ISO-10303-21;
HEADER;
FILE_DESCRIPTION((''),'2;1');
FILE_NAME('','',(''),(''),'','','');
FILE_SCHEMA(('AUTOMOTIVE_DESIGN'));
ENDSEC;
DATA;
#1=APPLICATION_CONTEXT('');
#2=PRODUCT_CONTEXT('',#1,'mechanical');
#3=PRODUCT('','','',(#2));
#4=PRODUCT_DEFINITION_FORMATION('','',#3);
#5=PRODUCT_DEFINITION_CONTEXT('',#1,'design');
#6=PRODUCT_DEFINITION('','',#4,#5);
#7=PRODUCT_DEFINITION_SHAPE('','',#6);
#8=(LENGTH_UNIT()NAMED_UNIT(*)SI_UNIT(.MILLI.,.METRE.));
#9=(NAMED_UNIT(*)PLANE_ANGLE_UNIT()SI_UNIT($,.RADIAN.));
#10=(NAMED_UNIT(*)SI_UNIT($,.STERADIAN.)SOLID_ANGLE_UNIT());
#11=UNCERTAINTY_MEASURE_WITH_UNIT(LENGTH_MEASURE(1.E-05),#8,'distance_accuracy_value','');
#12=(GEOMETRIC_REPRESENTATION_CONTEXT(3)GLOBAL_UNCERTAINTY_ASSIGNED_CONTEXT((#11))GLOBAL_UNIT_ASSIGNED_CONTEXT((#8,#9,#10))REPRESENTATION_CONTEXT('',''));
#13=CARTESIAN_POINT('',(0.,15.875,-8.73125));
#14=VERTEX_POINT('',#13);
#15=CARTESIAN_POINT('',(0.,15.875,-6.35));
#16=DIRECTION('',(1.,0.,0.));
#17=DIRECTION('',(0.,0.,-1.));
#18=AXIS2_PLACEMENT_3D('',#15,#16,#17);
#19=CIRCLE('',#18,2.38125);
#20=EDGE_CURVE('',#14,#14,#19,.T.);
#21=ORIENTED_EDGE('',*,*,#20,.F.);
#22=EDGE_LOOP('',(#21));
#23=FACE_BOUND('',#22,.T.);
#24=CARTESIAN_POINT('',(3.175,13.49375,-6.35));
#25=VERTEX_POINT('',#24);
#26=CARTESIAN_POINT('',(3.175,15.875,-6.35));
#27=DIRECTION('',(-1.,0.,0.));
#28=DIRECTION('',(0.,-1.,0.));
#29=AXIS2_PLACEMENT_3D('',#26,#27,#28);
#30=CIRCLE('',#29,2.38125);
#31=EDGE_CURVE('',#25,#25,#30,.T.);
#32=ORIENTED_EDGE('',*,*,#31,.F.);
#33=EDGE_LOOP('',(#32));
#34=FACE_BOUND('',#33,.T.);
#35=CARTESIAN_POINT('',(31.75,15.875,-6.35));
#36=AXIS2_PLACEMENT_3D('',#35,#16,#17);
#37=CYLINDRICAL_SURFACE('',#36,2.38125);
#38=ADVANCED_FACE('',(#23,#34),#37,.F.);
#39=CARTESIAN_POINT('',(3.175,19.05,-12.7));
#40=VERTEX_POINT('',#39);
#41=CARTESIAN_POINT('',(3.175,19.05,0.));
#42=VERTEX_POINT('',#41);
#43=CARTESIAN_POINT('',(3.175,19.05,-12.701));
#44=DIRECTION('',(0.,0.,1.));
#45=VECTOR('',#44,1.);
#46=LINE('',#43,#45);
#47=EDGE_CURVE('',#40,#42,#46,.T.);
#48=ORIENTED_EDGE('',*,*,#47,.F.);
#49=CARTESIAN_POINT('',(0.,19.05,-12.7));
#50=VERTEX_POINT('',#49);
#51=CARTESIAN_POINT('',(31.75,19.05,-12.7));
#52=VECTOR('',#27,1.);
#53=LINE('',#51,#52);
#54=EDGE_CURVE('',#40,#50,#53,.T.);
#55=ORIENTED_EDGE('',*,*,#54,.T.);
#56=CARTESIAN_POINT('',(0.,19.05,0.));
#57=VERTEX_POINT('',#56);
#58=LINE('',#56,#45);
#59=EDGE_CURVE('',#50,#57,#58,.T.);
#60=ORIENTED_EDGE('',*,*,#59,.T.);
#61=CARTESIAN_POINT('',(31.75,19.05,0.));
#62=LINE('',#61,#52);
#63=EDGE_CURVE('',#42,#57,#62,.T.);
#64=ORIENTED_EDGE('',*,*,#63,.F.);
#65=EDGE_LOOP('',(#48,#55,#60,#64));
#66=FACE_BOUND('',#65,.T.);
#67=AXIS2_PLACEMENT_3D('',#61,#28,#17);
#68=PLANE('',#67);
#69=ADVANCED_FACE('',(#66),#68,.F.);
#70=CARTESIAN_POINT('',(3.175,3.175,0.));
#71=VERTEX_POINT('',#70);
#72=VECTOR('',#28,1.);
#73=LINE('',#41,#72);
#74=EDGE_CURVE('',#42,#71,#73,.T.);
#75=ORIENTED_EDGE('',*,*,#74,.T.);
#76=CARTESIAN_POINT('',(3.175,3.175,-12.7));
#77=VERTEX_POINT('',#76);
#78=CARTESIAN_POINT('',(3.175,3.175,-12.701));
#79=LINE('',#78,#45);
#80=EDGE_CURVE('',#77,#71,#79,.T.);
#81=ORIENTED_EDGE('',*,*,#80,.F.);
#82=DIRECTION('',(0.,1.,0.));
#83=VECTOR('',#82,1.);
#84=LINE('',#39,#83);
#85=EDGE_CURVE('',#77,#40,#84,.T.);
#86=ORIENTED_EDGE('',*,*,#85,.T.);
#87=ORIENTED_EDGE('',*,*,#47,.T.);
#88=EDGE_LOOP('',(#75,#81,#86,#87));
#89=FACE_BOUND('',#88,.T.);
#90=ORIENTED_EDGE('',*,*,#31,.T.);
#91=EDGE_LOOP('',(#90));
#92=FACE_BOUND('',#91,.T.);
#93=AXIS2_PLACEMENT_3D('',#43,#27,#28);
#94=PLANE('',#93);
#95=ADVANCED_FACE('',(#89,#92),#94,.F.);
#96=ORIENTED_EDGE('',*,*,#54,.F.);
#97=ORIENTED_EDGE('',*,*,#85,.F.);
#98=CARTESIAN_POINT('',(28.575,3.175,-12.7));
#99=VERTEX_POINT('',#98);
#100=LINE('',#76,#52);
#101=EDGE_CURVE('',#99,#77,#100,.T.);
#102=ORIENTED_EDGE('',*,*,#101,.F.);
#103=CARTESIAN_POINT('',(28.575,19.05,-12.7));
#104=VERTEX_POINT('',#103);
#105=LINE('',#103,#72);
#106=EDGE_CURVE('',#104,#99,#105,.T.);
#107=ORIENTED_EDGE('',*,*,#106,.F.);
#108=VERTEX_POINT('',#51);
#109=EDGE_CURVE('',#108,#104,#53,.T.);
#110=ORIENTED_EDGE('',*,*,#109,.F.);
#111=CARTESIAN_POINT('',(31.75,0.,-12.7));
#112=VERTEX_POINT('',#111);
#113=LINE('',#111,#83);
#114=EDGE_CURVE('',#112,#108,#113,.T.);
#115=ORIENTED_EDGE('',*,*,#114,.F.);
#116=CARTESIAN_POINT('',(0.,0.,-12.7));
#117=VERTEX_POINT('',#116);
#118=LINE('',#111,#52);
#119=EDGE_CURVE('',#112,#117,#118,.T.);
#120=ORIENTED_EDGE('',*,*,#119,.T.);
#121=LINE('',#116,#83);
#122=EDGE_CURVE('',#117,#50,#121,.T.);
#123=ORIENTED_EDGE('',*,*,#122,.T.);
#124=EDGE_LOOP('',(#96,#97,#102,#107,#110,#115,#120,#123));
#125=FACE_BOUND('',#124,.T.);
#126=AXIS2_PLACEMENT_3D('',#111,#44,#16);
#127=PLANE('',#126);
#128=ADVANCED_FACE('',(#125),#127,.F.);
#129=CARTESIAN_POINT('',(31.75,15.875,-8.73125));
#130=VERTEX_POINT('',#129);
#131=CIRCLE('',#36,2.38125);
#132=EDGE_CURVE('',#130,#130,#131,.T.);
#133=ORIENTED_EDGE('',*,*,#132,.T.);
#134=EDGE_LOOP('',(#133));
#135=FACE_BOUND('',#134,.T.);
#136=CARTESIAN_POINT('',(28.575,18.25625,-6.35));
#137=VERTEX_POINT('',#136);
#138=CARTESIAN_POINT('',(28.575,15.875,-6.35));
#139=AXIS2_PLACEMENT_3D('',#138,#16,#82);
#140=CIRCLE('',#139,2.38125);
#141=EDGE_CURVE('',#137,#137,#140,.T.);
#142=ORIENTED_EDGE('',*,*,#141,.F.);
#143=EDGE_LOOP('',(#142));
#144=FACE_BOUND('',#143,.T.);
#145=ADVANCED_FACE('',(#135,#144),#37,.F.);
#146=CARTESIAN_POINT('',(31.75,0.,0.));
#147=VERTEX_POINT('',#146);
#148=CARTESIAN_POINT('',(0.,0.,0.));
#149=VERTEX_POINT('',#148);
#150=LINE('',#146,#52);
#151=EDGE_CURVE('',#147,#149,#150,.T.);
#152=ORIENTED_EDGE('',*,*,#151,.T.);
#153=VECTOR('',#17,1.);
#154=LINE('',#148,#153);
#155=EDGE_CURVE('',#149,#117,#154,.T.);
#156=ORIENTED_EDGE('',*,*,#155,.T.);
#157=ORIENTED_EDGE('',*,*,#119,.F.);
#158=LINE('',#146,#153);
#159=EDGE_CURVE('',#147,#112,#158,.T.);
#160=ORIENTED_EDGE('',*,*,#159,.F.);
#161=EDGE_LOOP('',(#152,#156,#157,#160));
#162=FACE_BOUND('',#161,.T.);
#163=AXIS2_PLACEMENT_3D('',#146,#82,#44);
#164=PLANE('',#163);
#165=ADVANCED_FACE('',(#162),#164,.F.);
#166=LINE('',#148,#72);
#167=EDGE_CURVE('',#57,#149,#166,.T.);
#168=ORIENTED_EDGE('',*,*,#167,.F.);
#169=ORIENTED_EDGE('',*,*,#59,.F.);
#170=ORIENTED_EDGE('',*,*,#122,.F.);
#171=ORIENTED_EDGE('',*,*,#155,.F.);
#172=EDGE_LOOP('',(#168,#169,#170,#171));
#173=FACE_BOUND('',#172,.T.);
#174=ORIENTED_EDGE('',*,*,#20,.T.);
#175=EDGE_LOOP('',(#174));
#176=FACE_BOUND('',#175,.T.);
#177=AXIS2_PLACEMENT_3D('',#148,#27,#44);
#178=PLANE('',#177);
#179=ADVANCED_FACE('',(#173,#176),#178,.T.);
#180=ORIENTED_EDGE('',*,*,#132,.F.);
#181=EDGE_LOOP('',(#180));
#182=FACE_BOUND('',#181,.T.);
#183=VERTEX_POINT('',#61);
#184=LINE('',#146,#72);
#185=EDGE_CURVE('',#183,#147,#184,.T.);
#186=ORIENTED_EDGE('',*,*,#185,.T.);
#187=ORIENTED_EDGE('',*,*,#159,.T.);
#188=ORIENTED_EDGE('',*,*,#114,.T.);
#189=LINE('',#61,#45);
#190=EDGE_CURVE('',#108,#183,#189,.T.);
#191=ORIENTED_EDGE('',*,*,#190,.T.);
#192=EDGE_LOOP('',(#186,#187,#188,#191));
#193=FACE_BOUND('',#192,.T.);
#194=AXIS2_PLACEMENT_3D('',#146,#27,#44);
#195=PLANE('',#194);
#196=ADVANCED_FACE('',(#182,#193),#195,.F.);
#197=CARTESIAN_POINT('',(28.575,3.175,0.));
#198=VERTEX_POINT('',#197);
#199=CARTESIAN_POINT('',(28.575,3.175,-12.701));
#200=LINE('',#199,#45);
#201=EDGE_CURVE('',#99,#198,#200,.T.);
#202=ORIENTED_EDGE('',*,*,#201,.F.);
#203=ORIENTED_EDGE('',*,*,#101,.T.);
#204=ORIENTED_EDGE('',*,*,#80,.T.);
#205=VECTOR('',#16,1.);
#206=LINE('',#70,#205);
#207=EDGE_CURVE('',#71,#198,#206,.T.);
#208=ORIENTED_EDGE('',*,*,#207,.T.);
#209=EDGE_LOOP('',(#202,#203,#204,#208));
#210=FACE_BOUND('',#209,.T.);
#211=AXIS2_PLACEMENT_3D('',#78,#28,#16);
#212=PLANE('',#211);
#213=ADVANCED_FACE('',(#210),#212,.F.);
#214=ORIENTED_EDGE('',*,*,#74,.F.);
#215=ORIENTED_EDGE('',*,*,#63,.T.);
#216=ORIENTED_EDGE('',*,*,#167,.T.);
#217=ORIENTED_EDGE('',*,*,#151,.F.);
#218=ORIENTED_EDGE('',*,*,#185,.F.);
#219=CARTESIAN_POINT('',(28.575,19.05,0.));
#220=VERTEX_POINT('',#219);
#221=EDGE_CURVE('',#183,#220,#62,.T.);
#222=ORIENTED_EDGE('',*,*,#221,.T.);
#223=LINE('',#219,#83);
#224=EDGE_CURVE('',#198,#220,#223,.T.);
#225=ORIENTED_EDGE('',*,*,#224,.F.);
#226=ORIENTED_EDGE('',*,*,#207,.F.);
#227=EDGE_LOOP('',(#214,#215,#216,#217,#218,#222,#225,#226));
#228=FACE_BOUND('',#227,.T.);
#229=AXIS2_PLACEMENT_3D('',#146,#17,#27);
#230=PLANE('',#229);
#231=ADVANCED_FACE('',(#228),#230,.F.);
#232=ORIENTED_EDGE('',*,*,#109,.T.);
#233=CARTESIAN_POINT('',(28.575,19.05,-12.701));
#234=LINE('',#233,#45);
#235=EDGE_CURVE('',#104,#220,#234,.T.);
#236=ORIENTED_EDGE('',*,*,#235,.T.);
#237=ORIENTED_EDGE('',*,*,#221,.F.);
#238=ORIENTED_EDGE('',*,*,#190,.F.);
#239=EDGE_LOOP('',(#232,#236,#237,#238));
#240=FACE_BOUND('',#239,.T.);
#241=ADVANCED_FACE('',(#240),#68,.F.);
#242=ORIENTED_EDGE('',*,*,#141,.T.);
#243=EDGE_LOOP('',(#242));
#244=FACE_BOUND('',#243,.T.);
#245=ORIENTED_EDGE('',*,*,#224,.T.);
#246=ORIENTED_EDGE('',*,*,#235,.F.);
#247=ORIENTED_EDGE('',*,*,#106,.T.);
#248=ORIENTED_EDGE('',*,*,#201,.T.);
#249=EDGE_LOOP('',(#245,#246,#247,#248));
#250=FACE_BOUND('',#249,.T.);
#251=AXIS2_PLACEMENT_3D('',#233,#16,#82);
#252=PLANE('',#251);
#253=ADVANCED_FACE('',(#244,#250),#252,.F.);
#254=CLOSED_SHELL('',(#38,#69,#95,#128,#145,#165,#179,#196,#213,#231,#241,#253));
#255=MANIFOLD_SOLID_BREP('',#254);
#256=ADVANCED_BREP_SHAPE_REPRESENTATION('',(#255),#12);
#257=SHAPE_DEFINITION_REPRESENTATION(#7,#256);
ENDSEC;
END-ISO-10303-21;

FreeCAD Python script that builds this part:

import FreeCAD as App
import Part
import Sketcher
Q = App.Units.Quantity


def add_polygon(sketch, points):
    """Adds a closed chain of lines whose ends are joined by coincident constraints."""
    first, n = sketch.GeometryCount, len(points)
    for a, b in zip(points, points[1:] + points[:1]):
        sketch.addGeometry(Part.LineSegment(App.Vector(*a, 0), App.Vector(*b, 0)), False)
    for i in range(n):
        sketch.addConstraint(Sketcher.Constraint("Coincident", first + i, 2, first + (i + 1) % n, 1))

doc = App.newDocument("Part")
body = doc.addObject("PartDesign::Body", "Body")

# Sketch on YZ plane
sketch1 = body.newObject("Sketcher::SketchObject", "Sketch")
sketch1.AttachmentSupport = (doc.getObject("YZ_Plane"), [""])
sketch1.MapMode = "FlatFace"
add_polygon(sketch1, [(19, 0), (0, 0), (0, -13), (19, -13)])  # lines 0-3
sketch1.addConstraint([
    Sketcher.Constraint("Horizontal", 0),
    Sketcher.Constraint("Vertical", 1),
    Sketcher.Constraint("Horizontal", 2),
    Sketcher.Constraint("Vertical", 3),
    Sketcher.Constraint("Coincident", 0, 2, -1, 1),
    Sketcher.Constraint("DistanceY", 1, 2, 1, 1, Q("0.5 in")),
    Sketcher.Constraint("DistanceX", 0, 2, 0, 1, Q("0.75 in")),
])
pad1 = body.newObject("PartDesign::Pad", "Pad")
pad1.Profile = sketch1
pad1.Length = Q("1.25 in")

# Sketch on XY plane
sketch2 = body.newObject("Sketcher::SketchObject", "Sketch001")
sketch2.AttachmentSupport = (doc.getObject("XY_Plane"), [""])
sketch2.MapMode = "FlatFace"
add_polygon(sketch2, [(3, 19), (3, 3), (29, 3), (29, 19)])  # lines 0-3
sketch2.addConstraint([
    Sketcher.Constraint("Vertical", 0),
    Sketcher.Constraint("Horizontal", 1),
    Sketcher.Constraint("Vertical", 2),
    Sketcher.Constraint("Horizontal", 3),
    Sketcher.Constraint("DistanceX", 1, 1, 1, 2, Q("1 in")),
    Sketcher.Constraint("DistanceY", 0, 2, 0, 1, Q("0.625 in")),
    Sketcher.Constraint("DistanceY", -1, 1, 2, 2, Q("0.75 in")),
    Sketcher.Constraint("DistanceX", -1, 1, 0, 2, Q("0.125 in")),
])
pocket1 = body.newObject("PartDesign::Pocket", "Pocket")
pocket1.Profile = sketch2
pocket1.Type = "UpToFirst"

# Sketch on YZ plane
sketch3 = body.newObject("Sketcher::SketchObject", "Sketch002")
sketch3.AttachmentSupport = (doc.getObject("YZ_Plane"), [""])
sketch3.MapMode = "FlatFace"
sketch3.AttachmentOffset = App.Placement(App.Vector(0, 0, 1.25 * 25.4), App.Rotation())
sketch3.addGeometry(Part.Circle(App.Vector(15.9, -6.3, 0), App.Vector(0, 0, 1), 2.4), False)
sketch3.addConstraint([
    Sketcher.Constraint("Diameter", 0, Q("0.1875 in")),
    Sketcher.Constraint("DistanceY", 0, 3, -1, 1, Q("0.25 in")),
    Sketcher.Constraint("DistanceX", -1, 1, 0, 3, Q("0.625 in")),
])
doc.recompute()
hole = body.newObject("PartDesign::Hole", "Hole")
hole.Profile = sketch3
hole.ThreadType = "None"
hole.Diameter = Q("0.1875 in")
hole.DepthType = "ThroughAll"

doc.recompute()
